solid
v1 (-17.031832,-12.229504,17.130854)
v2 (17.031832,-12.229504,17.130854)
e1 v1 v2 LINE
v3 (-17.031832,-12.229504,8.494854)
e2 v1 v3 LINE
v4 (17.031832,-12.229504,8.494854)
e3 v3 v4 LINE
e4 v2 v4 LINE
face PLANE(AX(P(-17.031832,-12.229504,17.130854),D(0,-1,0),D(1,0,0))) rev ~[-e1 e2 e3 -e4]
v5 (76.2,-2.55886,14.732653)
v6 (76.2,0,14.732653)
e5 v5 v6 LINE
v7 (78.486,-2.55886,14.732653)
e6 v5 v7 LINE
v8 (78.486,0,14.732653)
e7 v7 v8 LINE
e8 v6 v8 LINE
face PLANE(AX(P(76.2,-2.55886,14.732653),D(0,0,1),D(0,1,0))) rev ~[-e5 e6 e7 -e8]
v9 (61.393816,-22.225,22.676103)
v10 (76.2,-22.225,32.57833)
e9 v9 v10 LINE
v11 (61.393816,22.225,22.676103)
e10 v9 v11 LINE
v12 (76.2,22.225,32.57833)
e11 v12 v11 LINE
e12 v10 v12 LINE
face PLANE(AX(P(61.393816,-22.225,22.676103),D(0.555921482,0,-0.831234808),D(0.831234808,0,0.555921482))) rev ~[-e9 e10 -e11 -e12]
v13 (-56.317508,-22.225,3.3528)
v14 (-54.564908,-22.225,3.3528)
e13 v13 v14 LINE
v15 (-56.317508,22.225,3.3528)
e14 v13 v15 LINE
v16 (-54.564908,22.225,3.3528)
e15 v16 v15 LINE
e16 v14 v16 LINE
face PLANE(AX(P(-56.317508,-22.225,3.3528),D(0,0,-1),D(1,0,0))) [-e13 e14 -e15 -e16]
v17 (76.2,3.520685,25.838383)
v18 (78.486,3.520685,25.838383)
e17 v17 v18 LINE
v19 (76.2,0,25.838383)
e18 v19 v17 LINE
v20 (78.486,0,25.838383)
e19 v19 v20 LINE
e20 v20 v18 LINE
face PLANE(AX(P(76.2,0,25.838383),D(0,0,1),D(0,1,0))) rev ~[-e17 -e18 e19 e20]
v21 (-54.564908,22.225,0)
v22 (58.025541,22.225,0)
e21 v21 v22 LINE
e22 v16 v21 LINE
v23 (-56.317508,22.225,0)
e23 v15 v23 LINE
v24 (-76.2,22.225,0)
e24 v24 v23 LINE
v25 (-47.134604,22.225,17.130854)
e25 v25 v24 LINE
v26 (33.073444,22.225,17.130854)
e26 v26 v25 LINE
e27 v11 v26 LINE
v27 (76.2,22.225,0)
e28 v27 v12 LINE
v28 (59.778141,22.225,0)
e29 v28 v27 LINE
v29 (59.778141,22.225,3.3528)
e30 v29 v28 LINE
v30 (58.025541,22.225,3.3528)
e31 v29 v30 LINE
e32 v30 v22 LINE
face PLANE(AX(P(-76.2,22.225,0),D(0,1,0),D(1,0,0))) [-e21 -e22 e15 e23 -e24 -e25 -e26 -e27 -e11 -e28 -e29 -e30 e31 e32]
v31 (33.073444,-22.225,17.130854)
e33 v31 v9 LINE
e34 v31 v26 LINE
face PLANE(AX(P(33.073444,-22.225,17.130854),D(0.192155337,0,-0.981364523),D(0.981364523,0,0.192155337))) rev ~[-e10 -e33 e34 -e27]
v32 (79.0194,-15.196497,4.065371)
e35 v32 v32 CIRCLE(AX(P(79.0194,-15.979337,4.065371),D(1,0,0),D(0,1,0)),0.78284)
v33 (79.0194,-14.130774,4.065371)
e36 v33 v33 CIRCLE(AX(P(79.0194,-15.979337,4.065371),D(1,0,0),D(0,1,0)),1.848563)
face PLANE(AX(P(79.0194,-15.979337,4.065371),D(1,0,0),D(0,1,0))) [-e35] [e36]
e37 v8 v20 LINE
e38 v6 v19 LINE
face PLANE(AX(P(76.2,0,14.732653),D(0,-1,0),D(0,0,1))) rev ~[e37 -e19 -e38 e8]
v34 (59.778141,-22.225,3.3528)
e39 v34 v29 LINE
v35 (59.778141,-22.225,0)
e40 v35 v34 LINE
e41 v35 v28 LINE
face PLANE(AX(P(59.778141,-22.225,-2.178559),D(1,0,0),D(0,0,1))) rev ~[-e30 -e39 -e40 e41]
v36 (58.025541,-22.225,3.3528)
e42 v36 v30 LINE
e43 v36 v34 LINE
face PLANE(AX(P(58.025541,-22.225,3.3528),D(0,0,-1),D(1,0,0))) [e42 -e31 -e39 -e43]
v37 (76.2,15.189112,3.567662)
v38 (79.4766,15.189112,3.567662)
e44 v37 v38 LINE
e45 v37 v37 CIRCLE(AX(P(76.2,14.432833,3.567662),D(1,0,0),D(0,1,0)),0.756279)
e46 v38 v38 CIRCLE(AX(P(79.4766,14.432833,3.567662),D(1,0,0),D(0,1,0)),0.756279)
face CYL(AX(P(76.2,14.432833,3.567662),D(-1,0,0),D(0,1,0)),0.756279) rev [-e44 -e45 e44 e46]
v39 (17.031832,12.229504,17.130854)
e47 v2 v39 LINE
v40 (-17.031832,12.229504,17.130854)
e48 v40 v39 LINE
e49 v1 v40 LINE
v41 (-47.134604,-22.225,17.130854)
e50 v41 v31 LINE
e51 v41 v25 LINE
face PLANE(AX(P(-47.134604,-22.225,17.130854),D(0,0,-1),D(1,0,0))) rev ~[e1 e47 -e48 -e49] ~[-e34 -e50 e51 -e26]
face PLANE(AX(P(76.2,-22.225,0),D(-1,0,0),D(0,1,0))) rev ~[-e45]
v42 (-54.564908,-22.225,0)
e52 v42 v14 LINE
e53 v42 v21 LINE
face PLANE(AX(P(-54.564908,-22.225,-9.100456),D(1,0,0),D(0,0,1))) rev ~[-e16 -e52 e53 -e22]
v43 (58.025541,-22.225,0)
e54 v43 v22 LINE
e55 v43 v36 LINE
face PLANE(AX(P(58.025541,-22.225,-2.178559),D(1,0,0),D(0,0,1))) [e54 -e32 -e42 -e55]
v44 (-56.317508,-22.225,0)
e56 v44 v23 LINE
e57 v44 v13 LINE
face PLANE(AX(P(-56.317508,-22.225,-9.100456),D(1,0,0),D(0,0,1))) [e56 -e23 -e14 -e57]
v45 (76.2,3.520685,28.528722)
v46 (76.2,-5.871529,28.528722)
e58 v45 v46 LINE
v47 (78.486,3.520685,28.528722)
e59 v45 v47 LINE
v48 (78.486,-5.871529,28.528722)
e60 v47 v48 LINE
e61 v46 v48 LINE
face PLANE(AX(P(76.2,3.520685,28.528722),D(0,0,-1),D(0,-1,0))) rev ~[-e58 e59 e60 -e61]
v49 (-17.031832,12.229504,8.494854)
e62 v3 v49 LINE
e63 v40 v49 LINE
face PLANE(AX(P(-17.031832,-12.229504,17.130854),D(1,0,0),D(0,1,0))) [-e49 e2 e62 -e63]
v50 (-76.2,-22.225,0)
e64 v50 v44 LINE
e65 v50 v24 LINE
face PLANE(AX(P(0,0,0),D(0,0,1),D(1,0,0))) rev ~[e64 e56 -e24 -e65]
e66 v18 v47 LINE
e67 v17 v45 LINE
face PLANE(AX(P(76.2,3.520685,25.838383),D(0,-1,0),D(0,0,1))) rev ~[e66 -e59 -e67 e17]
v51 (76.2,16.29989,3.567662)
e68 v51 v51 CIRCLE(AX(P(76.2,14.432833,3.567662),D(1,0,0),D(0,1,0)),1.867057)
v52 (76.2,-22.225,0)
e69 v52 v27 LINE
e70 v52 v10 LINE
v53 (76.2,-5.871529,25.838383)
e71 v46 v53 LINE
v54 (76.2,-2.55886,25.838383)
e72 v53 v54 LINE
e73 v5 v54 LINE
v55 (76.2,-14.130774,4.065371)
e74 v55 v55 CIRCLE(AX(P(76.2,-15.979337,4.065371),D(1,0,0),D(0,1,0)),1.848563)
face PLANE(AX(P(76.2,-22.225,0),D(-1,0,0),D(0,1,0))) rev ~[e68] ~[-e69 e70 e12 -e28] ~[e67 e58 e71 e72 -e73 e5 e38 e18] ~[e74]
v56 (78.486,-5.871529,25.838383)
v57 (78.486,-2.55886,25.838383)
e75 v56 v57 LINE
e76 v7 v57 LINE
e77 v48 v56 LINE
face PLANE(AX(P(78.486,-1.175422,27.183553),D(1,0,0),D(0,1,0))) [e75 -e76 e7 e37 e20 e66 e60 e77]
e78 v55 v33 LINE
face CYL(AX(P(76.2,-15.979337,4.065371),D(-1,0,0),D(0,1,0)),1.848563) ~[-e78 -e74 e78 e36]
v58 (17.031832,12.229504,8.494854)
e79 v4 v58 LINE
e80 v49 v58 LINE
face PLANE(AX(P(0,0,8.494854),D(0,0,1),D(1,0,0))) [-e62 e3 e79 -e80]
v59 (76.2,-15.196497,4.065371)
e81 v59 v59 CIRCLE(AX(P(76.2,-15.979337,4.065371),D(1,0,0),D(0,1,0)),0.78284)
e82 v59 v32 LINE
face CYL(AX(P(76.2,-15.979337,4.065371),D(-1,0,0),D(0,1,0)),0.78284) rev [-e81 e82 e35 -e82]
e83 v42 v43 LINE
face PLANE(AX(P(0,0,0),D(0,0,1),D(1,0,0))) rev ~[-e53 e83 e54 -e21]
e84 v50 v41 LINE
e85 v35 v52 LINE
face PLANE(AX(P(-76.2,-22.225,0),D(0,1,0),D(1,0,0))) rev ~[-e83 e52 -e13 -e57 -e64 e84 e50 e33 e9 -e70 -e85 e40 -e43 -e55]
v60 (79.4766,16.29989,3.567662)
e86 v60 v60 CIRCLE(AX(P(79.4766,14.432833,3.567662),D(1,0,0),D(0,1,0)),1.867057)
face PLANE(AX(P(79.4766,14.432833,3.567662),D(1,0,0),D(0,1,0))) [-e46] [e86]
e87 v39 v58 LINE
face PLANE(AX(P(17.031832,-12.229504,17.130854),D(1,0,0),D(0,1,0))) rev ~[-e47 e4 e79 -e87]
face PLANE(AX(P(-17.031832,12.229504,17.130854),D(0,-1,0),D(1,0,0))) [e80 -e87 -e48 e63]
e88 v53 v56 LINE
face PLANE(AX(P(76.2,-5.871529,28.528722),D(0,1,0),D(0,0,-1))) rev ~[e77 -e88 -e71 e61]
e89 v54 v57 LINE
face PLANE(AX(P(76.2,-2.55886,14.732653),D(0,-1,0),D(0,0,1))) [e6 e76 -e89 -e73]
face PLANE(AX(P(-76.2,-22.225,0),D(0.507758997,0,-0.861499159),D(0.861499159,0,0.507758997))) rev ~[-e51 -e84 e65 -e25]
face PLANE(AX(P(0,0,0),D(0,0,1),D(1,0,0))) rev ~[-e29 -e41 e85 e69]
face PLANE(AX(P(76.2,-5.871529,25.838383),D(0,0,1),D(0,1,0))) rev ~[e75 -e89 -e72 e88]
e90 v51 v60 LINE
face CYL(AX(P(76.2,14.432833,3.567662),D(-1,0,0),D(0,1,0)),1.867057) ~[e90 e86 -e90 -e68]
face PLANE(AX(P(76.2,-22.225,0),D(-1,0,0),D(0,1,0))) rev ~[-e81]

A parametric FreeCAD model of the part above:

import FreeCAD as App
import Part
import Sketcher
from FreeCAD import Vector
Q = App.Units.Quantity


def add_polygon(sketch, points):
    """Adds a closed chain of lines whose ends are joined by coincident constraints."""
    first, n = sketch.GeometryCount, len(points)
    for a, b in zip(points, points[1:] + points[:1]):
        sketch.addGeometry(Part.LineSegment(App.Vector(*a, 0), App.Vector(*b, 0)), False)
    for i in range(n):
        sketch.addConstraint(Sketcher.Constraint("Coincident", first + i, 2, first + (i + 1) % n, 1))

doc = App.newDocument("Part")
body = doc.addObject("PartDesign::Body", "Body")

# Sketch on XY plane
sketch1 = doc.addObject("Sketcher::SketchObject", "Sketch")
body.addObject(sketch1)
sketch1.AttachmentSupport = (doc.XY_Plane, [""])
sketch1.MapMode = "FlatFace"
add_polygon(sketch1, [(-76.2, 22.225), (-76.2, -22.225), (76.2, -22.225), (76.2, 22.225)])  # lines 0-3
sketch1.addConstraint([
    Sketcher.Constraint("Vertical", 0),
    Sketcher.Constraint("Horizontal", 1),
    Sketcher.Constraint("Vertical", 2),
    Sketcher.Constraint("Horizontal", 3),
    Sketcher.Constraint("Symmetric", 0, 2, 2, 2, -1, 1),
    Sketcher.Constraint("DistanceX", 1, 1, 1, 2, Q("6 in")),
    Sketcher.Constraint("DistanceY", 0, 2, 0, 1, Q("1.75 in")),
])
pad1 = doc.addObject("PartDesign::Pad", "Pad")
body.addObject(pad1)
pad1.Profile = sketch1
pad1.Length = Q("1.5 in")

# Sketch on XZ plane
sketch2 = doc.addObject("Sketcher::SketchObject", "Sketch001")
body.addObject(sketch2)
sketch2.AttachmentSupport = (doc.XZ_Plane, [""])
sketch2.MapMode = "FlatFace"
sketch2.AttachmentOffset = App.Placement(Vector(0, 0, 0.875 * 25.4), App.Rotation())
add_polygon(sketch2, [(-92.090726, 33.964641), (-76.2, 0), (-47.134604, 17.130854), (33.073444, 17.130854), (61.393816, 22.676103), (76.2, 32.57833), (86.743511, 41.292287), (-31.291042, 57.729989)])  # lines 0-7
sketch2.addConstraint([
    Sketcher.Constraint("Horizontal", 2),
    Sketcher.Constraint("PointOnObject", 0, 2, -1),
    Sketcher.Constraint("DistanceX", 0, 2, -1, 1, Q("3 in")),
    Sketcher.Constraint("DistanceX", -1, 1, 4, 2, Q("3 in")),
    Sketcher.Constraint("Distance", 5, Q("13.678402 mm")),
    Sketcher.Constraint("DistanceX", 2, 1, 2, 2, Q("80.208048 mm")),
    Sketcher.Constraint("Distance", 0, Q("37.49816 mm")),
    Sketcher.Constraint("Distance", 1, Q("33.738159 mm")),
    Sketcher.Constraint("Distance", 6, Q("119.173629 mm")),
    Sketcher.Constraint("Distance", 7, Q("65.279348 mm")),
    Sketcher.Constraint("DistanceY", -1, 1, 4, 2, Q("32.57833 mm")),
    Sketcher.Constraint("DistanceX", -1, 1, 5, 2, Q("86.743511 mm")),
    Sketcher.Constraint("DistanceY", -1, 1, 6, 2, Q("57.729989 mm")),
    Sketcher.Constraint("DistanceX", 2, 2, 3, 2, Q("28.320372 mm")),
    Sketcher.Constraint("DistanceY", 2, 2, 3, 2, Q("5.545249 mm")),
    Sketcher.Constraint("DistanceX", 6, 2, 3, 2, Q("92.684858 mm")),
])
pocket1 = doc.addObject("PartDesign::Pocket", "Pocket")
body.addObject(pocket1)
pocket1.Profile = sketch2
pocket1.Length = Q("3.44 in")

# Sketch on XY plane
sketch3 = doc.addObject("Sketcher::SketchObject", "Sketch002")
body.addObject(sketch3)
sketch3.AttachmentSupport = (doc.XY_Plane, [""])
sketch3.MapMode = "FlatFace"
sketch3.AttachmentOffset = App.Placement(Vector(0, 0, 17.130854), App.Rotation())
add_polygon(sketch3, [(-17.031832, 12.229504), (-17.031832, -12.229504), (17.031832, -12.229504), (17.031832, 12.229504)])  # lines 0-3
sketch3.addConstraint([
    Sketcher.Constraint("Vertical", 0),
    Sketcher.Constraint("Horizontal", 1),
    Sketcher.Constraint("Vertical", 2),
    Sketcher.Constraint("Horizontal", 3),
    Sketcher.Constraint("Symmetric", 0, 2, 2, 2, -1, 1),
    Sketcher.Constraint("DistanceY", 0, 2, 0, 1, Q("24.459008 mm")),
    Sketcher.Constraint("DistanceX", 1, 1, 1, 2, Q("34.063664 mm")),
])
pocket2 = doc.addObject("PartDesign::Pocket", "Pocket001")
body.addObject(pocket2)
pocket2.Profile = sketch3
pocket2.Length = Q("0.34 in")

# Sketch on XZ plane
sketch4 = doc.addObject("Sketcher::SketchObject", "Sketch003")
body.addObject(sketch4)
sketch4.AttachmentSupport = (doc.XZ_Plane, [""])
sketch4.MapMode = "FlatFace"
sketch4.AttachmentOffset = App.Placement(Vector(0, 0, 0.875 * 25.4), App.Rotation())
add_polygon(sketch4, [(-56.317508, 3.3528), (-56.317508, -9.100456), (-54.564908, -9.100456), (-54.564908, 3.3528)])  # lines 0-3
sketch4.addConstraint([
    Sketcher.Constraint("Vertical", 0),
    Sketcher.Constraint("Horizontal", 1),
    Sketcher.Constraint("Vertical", 2),
    Sketcher.Constraint("Horizontal", 3),
    Sketcher.Constraint("DistanceX", 1, 1, 1, 2, Q("0.069 in")),
    Sketcher.Constraint("DistanceY", -1, 1, 2, 2, Q("0.132 in")),
    Sketcher.Constraint("DistanceY", 0, 2, 0, 1, Q("12.453256 mm")),
    Sketcher.Constraint("DistanceX", 1, 2, -1, 1, Q("54.564908 mm")),
])
pocket3 = doc.addObject("PartDesign::Pocket", "Pocket002")
body.addObject(pocket3)
pocket3.Profile = sketch4
pocket3.Length = Q("2.8 in")

# Sketch on XZ plane
sketch5 = doc.addObject("Sketcher::SketchObject", "Sketch004")
body.addObject(sketch5)
sketch5.AttachmentSupport = (doc.XZ_Plane, [""])
sketch5.MapMode = "FlatFace"
sketch5.AttachmentOffset = App.Placement(Vector(0, 0, 0.875 * 25.4), App.Rotation())
add_polygon(sketch5, [(58.025541, 3.3528), (58.025541, -2.178559), (59.778141, -2.178559), (59.778141, 3.3528)])  # lines 0-3
sketch5.addConstraint([
    Sketcher.Constraint("Vertical", 0),
    Sketcher.Constraint("Horizontal", 1),
    Sketcher.Constraint("Vertical", 2),
    Sketcher.Constraint("Horizontal", 3),
    Sketcher.Constraint("DistanceX", 1, 1, 1, 2, Q("0.069 in")),
    Sketcher.Constraint("DistanceY", -1, 1, 2, 2, Q("0.132 in")),
    Sketcher.Constraint("DistanceY", 0, 2, 0, 1, Q("5.531359 mm")),
    Sketcher.Constraint("DistanceX", -1, 1, 0, 2, Q("58.025541 mm")),
])
pocket4 = doc.addObject("PartDesign::Pocket", "Pocket003")
body.addObject(pocket4)
pocket4.Profile = sketch5
pocket4.Length = Q("2.492 in")

# Sketch on YZ plane
sketch6 = doc.addObject("Sketcher::SketchObject", "Sketch005")
body.addObject(sketch6)
sketch6.AttachmentSupport = (doc.YZ_Plane, [""])
sketch6.MapMode = "FlatFace"
sketch6.AttachmentOffset = App.Placement(Vector(0, 0, 3 * 25.4), App.Rotation())
sketch6.addGeometry([
    Part.Circle(Vector(-15.979337, 4.065371, 0), Vector(0, 0, 1), 1.848563),
    Part.Circle(Vector(-15.979337, 4.065371, 0), Vector(0, 0, 1), 0.78284),
], False)
sketch6.addConstraint([
    Sketcher.Constraint("Coincident", 1, 3, 0, 3),
    Sketcher.Constraint("Diameter", 1, Q("1.56568 mm")),
    Sketcher.Constraint("Diameter", 0, Q("3.697126 mm")),
    Sketcher.Constraint("DistanceY", -1, 1, 0, 3, Q("4.065371 mm")),
    Sketcher.Constraint("DistanceX", 0, 3, -1, 1, Q("15.979337 mm")),
])
pad2 = doc.addObject("PartDesign::Pad", "Pad001")
body.addObject(pad2)
pad2.Profile = sketch6
pad2.Length = Q("0.111 in")

# Sketch on YZ plane
sketch7 = doc.addObject("Sketcher::SketchObject", "Sketch006")
body.addObject(sketch7)
sketch7.AttachmentSupport = (doc.YZ_Plane, [""])
sketch7.MapMode = "FlatFace"
sketch7.AttachmentOffset = App.Placement(Vector(0, 0, 3 * 25.4), App.Rotation())
sketch7.addGeometry([
    Part.Circle(Vector(14.432833, 3.567662, 0), Vector(0, 0, 1), 1.867057),
    Part.Circle(Vector(14.432833, 3.567662, 0), Vector(0, 0, 1), 0.756279),
], False)
sketch7.addConstraint([
    Sketcher.Constraint("Coincident", 1, 3, 0, 3),
    Sketcher.Constraint("Diameter", 1, Q("1.512558 mm")),
    Sketcher.Constraint("Diameter", 0, Q("3.734114 mm")),
    Sketcher.Constraint("DistanceY", -1, 1, 0, 3, Q("3.567662 mm")),
    Sketcher.Constraint("DistanceX", -1, 1, 0, 3, Q("14.432833 mm")),
])
pad3 = doc.addObject("PartDesign::Pad", "Pad002")
body.addObject(pad3)
pad3.Profile = sketch7
pad3.Length = Q("0.129 in")

# Sketch on YZ plane
sketch8 = doc.addObject("Sketcher::SketchObject", "Sketch007")
body.addObject(sketch8)
sketch8.AttachmentSupport = (doc.YZ_Plane, [""])
sketch8.MapMode = "FlatFace"
sketch8.AttachmentOffset = App.Placement(Vector(0, 0, 3 * 25.4), App.Rotation())
add_polygon(sketch8, [(-5.871529, 28.528722), (-5.871529, 25.838383), (-2.55886, 25.838383), (-2.55886, 14.732653), (0, 14.732653), (0, 25.838383), (3.520685, 25.838383), (3.520685, 28.528722)])  # lines 0-7
sketch8.addConstraint([
    Sketcher.Constraint("Vertical", 0),
    Sketcher.Constraint("Horizontal", 1),
    Sketcher.Constraint("Vertical", 2),
    Sketcher.Constraint("Horizontal", 3),
    Sketcher.Constraint("Vertical", 4),
    Sketcher.Constraint("Horizontal", 5),
    Sketcher.Constraint("Vertical", 6),
    Sketcher.Constraint("Horizontal", 7),
    Sketcher.Constraint("PointOnObject", 3, 2, -2),
    Sketcher.Constraint("Horizontal", 1, 2, 4, 2),
    Sketcher.Constraint("DistanceX", 1, 1, 1, 2, Q("3.312669 mm")),
    Sketcher.Constraint("DistanceX", 3, 1, 3, 2, Q("2.55886 mm")),
    Sketcher.Constraint("DistanceY", 0, 2, 0, 1, Q("2.690339 mm")),
    Sketcher.Constraint("DistanceY", 2, 2, 2, 1, Q("11.10573 mm")),
    Sketcher.Constraint("DistanceX", 5, 1, 5, 2, Q("3.520685 mm")),
    Sketcher.Constraint("DistanceY", -1, 1, 6, 2, Q("28.528722 mm")),
])
pad4 = doc.addObject("PartDesign::Pad", "Pad003")
body.addObject(pad4)
pad4.Profile = sketch8
pad4.Length = Q("0.09 in")

doc.recompute()
